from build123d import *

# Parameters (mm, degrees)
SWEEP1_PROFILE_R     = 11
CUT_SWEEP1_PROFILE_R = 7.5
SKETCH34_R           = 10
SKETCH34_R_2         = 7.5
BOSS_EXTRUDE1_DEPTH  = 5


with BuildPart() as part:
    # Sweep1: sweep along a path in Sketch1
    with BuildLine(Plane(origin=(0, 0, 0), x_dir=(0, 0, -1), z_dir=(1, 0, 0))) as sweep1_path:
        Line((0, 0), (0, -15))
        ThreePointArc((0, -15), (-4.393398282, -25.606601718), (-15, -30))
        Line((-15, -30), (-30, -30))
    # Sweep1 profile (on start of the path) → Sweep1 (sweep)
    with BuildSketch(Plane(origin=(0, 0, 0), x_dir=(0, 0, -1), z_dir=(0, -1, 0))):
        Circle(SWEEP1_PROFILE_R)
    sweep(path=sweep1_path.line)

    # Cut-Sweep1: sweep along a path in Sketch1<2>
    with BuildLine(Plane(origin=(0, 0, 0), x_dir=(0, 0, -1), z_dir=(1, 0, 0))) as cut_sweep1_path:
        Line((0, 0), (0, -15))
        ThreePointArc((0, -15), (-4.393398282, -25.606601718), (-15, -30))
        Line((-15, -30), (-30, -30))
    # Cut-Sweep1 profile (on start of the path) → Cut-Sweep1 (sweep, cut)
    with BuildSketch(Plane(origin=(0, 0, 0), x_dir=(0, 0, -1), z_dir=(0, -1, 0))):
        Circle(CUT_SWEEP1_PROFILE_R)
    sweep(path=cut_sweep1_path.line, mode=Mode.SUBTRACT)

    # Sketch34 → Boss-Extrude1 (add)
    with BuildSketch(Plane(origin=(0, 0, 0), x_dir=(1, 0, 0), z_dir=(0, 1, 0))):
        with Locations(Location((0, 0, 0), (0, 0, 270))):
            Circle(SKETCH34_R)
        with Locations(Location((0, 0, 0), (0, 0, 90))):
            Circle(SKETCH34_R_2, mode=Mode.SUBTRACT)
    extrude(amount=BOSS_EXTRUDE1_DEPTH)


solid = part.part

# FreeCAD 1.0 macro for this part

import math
import FreeCAD as App
import Part
import Sketcher

V = App.Vector
Q = App.Units.Quantity

doc = App.newDocument("Part")
body = doc.addObject("PartDesign::Body", "Body")

sketch1 = doc.addObject("Sketcher::SketchObject", "Sketch")
body.addObject(sketch1)
sketch1.AttachmentSupport = (doc.XZ_Plane, [""])
sketch1.MapMode = "FlatFace"
sketch1.addGeometry(Part.Circle(V(0, 0, 0), V(0, 0, 1), 11), False)
sketch1.addConstraint([
    Sketcher.Constraint("Coincident", 0, 3, -1, 1),
    Sketcher.Constraint("Diameter", 0, Q("22 mm")),
])

sketch2 = doc.addObject("Sketcher::SketchObject", "Sketch001")
body.addObject(sketch2)
sketch2.AttachmentSupport = (doc.YZ_Plane, [""])
sketch2.MapMode = "FlatFace"
sketch2.addGeometry([
    Part.LineSegment(V(0, 0, 0), V(-15, 0, 0)),
    Part.ArcOfCircle(Part.Circle(V(-15, 15, 0), V(0, 0, 1), 15), math.radians(180), math.radians(270)),
    Part.LineSegment(V(-30, 15, 0), V(-30, 30, 0)),
], False)
sketch2.addConstraint([
    Sketcher.Constraint("Tangent", 0, 2, 1, 2),
    Sketcher.Constraint("Tangent", 1, 1, 2, 1),
    Sketcher.Constraint("Horizontal", 0),
    Sketcher.Constraint("Vertical", 2),
    Sketcher.Constraint("Coincident", 0, 1, -1, 1),
    Sketcher.Constraint("Equal", 0, 2),
    Sketcher.Constraint("Radius", 1, Q("15 mm")),
    Sketcher.Constraint("DistanceX", 0, 2, 0, 1, Q("15 mm")),
])
doc.recompute()

additivepipe = doc.addObject("PartDesign::AdditivePipe", "AdditivePipe")
body.addObject(additivepipe)
additivepipe.Profile = sketch1
additivepipe.Spine = (sketch2, ["Edge1", "Edge2", "Edge3"])

sketch3 = doc.addObject("Sketcher::SketchObject", "Sketch002")
body.addObject(sketch3)
sketch3.AttachmentSupport = (doc.XZ_Plane, [""])
sketch3.MapMode = "FlatFace"
sketch3.addGeometry(Part.Circle(V(0, 0, 0), V(0, 0, 1), 7.5), False)
sketch3.addConstraint([
    Sketcher.Constraint("Coincident", 0, 3, -1, 1),
    Sketcher.Constraint("Diameter", 0, Q("15 mm")),
])

sketch4 = doc.addObject("Sketcher::SketchObject", "Sketch003")
body.addObject(sketch4)
sketch4.AttachmentSupport = (doc.YZ_Plane, [""])
sketch4.MapMode = "FlatFace"
sketch4.addGeometry([
    Part.LineSegment(V(0, 0, 0), V(-15, 0, 0)),
    Part.ArcOfCircle(Part.Circle(V(-15, 15, 0), V(0, 0, 1), 15), math.radians(180), math.radians(270)),
    Part.LineSegment(V(-30, 15, 0), V(-30, 30, 0)),
], False)
sketch4.addConstraint([
    Sketcher.Constraint("Tangent", 0, 2, 1, 2),
    Sketcher.Constraint("Tangent", 1, 1, 2, 1),
    Sketcher.Constraint("Horizontal", 0),
    Sketcher.Constraint("Vertical", 2),
    Sketcher.Constraint("Coincident", 0, 1, -1, 1),
    Sketcher.Constraint("Equal", 0, 2),
    Sketcher.Constraint("Radius", 1, Q("15 mm")),
    Sketcher.Constraint("DistanceX", 0, 2, 0, 1, Q("15 mm")),
])
doc.recompute()

subtractivepipe = doc.addObject("PartDesign::SubtractivePipe", "SubtractivePipe")
body.addObject(subtractivepipe)
subtractivepipe.Profile = sketch3
subtractivepipe.Spine = (sketch4, ["Edge1", "Edge2", "Edge3"])

sketch5 = doc.addObject("Sketcher::SketchObject", "Sketch004")
body.addObject(sketch5)
sketch5.AttachmentSupport = (doc.XZ_Plane, [""])
sketch5.MapMode = "FlatFace"
sketch5.addGeometry([
    Part.Circle(V(0, 0, 0), V(0, 0, 1), 10),
    Part.Circle(V(0, 0, 0), V(0, 0, 1), 7.5),
], False)
sketch5.addConstraint([
    Sketcher.Constraint("Coincident", 0, 3, -1, 1),
    Sketcher.Constraint("Coincident", 1, 3, -1, 1),
    Sketcher.Constraint("Diameter", 0, Q("20 mm")),
    Sketcher.Constraint("Diameter", 1, Q("15 mm")),
])
pad1 = doc.addObject("PartDesign::Pad", "Pad")
body.addObject(pad1)
pad1.Profile = sketch5
pad1.Length = 5
pad1.Reversed = True

doc.recompute()
